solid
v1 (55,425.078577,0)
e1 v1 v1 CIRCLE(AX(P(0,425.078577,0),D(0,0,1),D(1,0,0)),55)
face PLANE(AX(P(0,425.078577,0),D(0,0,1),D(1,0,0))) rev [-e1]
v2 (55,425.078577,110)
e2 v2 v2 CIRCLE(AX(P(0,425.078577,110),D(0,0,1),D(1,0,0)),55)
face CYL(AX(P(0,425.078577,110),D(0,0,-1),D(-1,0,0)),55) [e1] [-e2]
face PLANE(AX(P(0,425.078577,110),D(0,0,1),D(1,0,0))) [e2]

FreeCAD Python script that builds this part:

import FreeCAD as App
import Part
import Sketcher

V = App.Vector
Q = App.Units.Quantity

doc = App.newDocument("Part")
body = doc.addObject("PartDesign::Body", "Body")

sketch1 = body.newObject("Sketcher::SketchObject", "Sketch")
sketch1.AttachmentSupport = (doc.getObject("XY_Plane"), [""])
sketch1.MapMode = "FlatFace"
sketch1.addGeometry(Part.Circle(V(0, 425, 0), V(0, 0, 1), 55), False)
sketch1.addConstraint(Sketcher.Constraint("PointOnObject", 0, 3, -2))
sketch1.addConstraint(Sketcher.Constraint("Diameter", 0, Q("110 mm")))
sketch1.addConstraint(Sketcher.Constraint("DistanceY", -1, 1, 0, 3, Q("425.078577 mm")))
pad1 = body.newObject("PartDesign::Pad", "Pad")
pad1.Profile = sketch1
pad1.Length = 110

doc.recompute()
